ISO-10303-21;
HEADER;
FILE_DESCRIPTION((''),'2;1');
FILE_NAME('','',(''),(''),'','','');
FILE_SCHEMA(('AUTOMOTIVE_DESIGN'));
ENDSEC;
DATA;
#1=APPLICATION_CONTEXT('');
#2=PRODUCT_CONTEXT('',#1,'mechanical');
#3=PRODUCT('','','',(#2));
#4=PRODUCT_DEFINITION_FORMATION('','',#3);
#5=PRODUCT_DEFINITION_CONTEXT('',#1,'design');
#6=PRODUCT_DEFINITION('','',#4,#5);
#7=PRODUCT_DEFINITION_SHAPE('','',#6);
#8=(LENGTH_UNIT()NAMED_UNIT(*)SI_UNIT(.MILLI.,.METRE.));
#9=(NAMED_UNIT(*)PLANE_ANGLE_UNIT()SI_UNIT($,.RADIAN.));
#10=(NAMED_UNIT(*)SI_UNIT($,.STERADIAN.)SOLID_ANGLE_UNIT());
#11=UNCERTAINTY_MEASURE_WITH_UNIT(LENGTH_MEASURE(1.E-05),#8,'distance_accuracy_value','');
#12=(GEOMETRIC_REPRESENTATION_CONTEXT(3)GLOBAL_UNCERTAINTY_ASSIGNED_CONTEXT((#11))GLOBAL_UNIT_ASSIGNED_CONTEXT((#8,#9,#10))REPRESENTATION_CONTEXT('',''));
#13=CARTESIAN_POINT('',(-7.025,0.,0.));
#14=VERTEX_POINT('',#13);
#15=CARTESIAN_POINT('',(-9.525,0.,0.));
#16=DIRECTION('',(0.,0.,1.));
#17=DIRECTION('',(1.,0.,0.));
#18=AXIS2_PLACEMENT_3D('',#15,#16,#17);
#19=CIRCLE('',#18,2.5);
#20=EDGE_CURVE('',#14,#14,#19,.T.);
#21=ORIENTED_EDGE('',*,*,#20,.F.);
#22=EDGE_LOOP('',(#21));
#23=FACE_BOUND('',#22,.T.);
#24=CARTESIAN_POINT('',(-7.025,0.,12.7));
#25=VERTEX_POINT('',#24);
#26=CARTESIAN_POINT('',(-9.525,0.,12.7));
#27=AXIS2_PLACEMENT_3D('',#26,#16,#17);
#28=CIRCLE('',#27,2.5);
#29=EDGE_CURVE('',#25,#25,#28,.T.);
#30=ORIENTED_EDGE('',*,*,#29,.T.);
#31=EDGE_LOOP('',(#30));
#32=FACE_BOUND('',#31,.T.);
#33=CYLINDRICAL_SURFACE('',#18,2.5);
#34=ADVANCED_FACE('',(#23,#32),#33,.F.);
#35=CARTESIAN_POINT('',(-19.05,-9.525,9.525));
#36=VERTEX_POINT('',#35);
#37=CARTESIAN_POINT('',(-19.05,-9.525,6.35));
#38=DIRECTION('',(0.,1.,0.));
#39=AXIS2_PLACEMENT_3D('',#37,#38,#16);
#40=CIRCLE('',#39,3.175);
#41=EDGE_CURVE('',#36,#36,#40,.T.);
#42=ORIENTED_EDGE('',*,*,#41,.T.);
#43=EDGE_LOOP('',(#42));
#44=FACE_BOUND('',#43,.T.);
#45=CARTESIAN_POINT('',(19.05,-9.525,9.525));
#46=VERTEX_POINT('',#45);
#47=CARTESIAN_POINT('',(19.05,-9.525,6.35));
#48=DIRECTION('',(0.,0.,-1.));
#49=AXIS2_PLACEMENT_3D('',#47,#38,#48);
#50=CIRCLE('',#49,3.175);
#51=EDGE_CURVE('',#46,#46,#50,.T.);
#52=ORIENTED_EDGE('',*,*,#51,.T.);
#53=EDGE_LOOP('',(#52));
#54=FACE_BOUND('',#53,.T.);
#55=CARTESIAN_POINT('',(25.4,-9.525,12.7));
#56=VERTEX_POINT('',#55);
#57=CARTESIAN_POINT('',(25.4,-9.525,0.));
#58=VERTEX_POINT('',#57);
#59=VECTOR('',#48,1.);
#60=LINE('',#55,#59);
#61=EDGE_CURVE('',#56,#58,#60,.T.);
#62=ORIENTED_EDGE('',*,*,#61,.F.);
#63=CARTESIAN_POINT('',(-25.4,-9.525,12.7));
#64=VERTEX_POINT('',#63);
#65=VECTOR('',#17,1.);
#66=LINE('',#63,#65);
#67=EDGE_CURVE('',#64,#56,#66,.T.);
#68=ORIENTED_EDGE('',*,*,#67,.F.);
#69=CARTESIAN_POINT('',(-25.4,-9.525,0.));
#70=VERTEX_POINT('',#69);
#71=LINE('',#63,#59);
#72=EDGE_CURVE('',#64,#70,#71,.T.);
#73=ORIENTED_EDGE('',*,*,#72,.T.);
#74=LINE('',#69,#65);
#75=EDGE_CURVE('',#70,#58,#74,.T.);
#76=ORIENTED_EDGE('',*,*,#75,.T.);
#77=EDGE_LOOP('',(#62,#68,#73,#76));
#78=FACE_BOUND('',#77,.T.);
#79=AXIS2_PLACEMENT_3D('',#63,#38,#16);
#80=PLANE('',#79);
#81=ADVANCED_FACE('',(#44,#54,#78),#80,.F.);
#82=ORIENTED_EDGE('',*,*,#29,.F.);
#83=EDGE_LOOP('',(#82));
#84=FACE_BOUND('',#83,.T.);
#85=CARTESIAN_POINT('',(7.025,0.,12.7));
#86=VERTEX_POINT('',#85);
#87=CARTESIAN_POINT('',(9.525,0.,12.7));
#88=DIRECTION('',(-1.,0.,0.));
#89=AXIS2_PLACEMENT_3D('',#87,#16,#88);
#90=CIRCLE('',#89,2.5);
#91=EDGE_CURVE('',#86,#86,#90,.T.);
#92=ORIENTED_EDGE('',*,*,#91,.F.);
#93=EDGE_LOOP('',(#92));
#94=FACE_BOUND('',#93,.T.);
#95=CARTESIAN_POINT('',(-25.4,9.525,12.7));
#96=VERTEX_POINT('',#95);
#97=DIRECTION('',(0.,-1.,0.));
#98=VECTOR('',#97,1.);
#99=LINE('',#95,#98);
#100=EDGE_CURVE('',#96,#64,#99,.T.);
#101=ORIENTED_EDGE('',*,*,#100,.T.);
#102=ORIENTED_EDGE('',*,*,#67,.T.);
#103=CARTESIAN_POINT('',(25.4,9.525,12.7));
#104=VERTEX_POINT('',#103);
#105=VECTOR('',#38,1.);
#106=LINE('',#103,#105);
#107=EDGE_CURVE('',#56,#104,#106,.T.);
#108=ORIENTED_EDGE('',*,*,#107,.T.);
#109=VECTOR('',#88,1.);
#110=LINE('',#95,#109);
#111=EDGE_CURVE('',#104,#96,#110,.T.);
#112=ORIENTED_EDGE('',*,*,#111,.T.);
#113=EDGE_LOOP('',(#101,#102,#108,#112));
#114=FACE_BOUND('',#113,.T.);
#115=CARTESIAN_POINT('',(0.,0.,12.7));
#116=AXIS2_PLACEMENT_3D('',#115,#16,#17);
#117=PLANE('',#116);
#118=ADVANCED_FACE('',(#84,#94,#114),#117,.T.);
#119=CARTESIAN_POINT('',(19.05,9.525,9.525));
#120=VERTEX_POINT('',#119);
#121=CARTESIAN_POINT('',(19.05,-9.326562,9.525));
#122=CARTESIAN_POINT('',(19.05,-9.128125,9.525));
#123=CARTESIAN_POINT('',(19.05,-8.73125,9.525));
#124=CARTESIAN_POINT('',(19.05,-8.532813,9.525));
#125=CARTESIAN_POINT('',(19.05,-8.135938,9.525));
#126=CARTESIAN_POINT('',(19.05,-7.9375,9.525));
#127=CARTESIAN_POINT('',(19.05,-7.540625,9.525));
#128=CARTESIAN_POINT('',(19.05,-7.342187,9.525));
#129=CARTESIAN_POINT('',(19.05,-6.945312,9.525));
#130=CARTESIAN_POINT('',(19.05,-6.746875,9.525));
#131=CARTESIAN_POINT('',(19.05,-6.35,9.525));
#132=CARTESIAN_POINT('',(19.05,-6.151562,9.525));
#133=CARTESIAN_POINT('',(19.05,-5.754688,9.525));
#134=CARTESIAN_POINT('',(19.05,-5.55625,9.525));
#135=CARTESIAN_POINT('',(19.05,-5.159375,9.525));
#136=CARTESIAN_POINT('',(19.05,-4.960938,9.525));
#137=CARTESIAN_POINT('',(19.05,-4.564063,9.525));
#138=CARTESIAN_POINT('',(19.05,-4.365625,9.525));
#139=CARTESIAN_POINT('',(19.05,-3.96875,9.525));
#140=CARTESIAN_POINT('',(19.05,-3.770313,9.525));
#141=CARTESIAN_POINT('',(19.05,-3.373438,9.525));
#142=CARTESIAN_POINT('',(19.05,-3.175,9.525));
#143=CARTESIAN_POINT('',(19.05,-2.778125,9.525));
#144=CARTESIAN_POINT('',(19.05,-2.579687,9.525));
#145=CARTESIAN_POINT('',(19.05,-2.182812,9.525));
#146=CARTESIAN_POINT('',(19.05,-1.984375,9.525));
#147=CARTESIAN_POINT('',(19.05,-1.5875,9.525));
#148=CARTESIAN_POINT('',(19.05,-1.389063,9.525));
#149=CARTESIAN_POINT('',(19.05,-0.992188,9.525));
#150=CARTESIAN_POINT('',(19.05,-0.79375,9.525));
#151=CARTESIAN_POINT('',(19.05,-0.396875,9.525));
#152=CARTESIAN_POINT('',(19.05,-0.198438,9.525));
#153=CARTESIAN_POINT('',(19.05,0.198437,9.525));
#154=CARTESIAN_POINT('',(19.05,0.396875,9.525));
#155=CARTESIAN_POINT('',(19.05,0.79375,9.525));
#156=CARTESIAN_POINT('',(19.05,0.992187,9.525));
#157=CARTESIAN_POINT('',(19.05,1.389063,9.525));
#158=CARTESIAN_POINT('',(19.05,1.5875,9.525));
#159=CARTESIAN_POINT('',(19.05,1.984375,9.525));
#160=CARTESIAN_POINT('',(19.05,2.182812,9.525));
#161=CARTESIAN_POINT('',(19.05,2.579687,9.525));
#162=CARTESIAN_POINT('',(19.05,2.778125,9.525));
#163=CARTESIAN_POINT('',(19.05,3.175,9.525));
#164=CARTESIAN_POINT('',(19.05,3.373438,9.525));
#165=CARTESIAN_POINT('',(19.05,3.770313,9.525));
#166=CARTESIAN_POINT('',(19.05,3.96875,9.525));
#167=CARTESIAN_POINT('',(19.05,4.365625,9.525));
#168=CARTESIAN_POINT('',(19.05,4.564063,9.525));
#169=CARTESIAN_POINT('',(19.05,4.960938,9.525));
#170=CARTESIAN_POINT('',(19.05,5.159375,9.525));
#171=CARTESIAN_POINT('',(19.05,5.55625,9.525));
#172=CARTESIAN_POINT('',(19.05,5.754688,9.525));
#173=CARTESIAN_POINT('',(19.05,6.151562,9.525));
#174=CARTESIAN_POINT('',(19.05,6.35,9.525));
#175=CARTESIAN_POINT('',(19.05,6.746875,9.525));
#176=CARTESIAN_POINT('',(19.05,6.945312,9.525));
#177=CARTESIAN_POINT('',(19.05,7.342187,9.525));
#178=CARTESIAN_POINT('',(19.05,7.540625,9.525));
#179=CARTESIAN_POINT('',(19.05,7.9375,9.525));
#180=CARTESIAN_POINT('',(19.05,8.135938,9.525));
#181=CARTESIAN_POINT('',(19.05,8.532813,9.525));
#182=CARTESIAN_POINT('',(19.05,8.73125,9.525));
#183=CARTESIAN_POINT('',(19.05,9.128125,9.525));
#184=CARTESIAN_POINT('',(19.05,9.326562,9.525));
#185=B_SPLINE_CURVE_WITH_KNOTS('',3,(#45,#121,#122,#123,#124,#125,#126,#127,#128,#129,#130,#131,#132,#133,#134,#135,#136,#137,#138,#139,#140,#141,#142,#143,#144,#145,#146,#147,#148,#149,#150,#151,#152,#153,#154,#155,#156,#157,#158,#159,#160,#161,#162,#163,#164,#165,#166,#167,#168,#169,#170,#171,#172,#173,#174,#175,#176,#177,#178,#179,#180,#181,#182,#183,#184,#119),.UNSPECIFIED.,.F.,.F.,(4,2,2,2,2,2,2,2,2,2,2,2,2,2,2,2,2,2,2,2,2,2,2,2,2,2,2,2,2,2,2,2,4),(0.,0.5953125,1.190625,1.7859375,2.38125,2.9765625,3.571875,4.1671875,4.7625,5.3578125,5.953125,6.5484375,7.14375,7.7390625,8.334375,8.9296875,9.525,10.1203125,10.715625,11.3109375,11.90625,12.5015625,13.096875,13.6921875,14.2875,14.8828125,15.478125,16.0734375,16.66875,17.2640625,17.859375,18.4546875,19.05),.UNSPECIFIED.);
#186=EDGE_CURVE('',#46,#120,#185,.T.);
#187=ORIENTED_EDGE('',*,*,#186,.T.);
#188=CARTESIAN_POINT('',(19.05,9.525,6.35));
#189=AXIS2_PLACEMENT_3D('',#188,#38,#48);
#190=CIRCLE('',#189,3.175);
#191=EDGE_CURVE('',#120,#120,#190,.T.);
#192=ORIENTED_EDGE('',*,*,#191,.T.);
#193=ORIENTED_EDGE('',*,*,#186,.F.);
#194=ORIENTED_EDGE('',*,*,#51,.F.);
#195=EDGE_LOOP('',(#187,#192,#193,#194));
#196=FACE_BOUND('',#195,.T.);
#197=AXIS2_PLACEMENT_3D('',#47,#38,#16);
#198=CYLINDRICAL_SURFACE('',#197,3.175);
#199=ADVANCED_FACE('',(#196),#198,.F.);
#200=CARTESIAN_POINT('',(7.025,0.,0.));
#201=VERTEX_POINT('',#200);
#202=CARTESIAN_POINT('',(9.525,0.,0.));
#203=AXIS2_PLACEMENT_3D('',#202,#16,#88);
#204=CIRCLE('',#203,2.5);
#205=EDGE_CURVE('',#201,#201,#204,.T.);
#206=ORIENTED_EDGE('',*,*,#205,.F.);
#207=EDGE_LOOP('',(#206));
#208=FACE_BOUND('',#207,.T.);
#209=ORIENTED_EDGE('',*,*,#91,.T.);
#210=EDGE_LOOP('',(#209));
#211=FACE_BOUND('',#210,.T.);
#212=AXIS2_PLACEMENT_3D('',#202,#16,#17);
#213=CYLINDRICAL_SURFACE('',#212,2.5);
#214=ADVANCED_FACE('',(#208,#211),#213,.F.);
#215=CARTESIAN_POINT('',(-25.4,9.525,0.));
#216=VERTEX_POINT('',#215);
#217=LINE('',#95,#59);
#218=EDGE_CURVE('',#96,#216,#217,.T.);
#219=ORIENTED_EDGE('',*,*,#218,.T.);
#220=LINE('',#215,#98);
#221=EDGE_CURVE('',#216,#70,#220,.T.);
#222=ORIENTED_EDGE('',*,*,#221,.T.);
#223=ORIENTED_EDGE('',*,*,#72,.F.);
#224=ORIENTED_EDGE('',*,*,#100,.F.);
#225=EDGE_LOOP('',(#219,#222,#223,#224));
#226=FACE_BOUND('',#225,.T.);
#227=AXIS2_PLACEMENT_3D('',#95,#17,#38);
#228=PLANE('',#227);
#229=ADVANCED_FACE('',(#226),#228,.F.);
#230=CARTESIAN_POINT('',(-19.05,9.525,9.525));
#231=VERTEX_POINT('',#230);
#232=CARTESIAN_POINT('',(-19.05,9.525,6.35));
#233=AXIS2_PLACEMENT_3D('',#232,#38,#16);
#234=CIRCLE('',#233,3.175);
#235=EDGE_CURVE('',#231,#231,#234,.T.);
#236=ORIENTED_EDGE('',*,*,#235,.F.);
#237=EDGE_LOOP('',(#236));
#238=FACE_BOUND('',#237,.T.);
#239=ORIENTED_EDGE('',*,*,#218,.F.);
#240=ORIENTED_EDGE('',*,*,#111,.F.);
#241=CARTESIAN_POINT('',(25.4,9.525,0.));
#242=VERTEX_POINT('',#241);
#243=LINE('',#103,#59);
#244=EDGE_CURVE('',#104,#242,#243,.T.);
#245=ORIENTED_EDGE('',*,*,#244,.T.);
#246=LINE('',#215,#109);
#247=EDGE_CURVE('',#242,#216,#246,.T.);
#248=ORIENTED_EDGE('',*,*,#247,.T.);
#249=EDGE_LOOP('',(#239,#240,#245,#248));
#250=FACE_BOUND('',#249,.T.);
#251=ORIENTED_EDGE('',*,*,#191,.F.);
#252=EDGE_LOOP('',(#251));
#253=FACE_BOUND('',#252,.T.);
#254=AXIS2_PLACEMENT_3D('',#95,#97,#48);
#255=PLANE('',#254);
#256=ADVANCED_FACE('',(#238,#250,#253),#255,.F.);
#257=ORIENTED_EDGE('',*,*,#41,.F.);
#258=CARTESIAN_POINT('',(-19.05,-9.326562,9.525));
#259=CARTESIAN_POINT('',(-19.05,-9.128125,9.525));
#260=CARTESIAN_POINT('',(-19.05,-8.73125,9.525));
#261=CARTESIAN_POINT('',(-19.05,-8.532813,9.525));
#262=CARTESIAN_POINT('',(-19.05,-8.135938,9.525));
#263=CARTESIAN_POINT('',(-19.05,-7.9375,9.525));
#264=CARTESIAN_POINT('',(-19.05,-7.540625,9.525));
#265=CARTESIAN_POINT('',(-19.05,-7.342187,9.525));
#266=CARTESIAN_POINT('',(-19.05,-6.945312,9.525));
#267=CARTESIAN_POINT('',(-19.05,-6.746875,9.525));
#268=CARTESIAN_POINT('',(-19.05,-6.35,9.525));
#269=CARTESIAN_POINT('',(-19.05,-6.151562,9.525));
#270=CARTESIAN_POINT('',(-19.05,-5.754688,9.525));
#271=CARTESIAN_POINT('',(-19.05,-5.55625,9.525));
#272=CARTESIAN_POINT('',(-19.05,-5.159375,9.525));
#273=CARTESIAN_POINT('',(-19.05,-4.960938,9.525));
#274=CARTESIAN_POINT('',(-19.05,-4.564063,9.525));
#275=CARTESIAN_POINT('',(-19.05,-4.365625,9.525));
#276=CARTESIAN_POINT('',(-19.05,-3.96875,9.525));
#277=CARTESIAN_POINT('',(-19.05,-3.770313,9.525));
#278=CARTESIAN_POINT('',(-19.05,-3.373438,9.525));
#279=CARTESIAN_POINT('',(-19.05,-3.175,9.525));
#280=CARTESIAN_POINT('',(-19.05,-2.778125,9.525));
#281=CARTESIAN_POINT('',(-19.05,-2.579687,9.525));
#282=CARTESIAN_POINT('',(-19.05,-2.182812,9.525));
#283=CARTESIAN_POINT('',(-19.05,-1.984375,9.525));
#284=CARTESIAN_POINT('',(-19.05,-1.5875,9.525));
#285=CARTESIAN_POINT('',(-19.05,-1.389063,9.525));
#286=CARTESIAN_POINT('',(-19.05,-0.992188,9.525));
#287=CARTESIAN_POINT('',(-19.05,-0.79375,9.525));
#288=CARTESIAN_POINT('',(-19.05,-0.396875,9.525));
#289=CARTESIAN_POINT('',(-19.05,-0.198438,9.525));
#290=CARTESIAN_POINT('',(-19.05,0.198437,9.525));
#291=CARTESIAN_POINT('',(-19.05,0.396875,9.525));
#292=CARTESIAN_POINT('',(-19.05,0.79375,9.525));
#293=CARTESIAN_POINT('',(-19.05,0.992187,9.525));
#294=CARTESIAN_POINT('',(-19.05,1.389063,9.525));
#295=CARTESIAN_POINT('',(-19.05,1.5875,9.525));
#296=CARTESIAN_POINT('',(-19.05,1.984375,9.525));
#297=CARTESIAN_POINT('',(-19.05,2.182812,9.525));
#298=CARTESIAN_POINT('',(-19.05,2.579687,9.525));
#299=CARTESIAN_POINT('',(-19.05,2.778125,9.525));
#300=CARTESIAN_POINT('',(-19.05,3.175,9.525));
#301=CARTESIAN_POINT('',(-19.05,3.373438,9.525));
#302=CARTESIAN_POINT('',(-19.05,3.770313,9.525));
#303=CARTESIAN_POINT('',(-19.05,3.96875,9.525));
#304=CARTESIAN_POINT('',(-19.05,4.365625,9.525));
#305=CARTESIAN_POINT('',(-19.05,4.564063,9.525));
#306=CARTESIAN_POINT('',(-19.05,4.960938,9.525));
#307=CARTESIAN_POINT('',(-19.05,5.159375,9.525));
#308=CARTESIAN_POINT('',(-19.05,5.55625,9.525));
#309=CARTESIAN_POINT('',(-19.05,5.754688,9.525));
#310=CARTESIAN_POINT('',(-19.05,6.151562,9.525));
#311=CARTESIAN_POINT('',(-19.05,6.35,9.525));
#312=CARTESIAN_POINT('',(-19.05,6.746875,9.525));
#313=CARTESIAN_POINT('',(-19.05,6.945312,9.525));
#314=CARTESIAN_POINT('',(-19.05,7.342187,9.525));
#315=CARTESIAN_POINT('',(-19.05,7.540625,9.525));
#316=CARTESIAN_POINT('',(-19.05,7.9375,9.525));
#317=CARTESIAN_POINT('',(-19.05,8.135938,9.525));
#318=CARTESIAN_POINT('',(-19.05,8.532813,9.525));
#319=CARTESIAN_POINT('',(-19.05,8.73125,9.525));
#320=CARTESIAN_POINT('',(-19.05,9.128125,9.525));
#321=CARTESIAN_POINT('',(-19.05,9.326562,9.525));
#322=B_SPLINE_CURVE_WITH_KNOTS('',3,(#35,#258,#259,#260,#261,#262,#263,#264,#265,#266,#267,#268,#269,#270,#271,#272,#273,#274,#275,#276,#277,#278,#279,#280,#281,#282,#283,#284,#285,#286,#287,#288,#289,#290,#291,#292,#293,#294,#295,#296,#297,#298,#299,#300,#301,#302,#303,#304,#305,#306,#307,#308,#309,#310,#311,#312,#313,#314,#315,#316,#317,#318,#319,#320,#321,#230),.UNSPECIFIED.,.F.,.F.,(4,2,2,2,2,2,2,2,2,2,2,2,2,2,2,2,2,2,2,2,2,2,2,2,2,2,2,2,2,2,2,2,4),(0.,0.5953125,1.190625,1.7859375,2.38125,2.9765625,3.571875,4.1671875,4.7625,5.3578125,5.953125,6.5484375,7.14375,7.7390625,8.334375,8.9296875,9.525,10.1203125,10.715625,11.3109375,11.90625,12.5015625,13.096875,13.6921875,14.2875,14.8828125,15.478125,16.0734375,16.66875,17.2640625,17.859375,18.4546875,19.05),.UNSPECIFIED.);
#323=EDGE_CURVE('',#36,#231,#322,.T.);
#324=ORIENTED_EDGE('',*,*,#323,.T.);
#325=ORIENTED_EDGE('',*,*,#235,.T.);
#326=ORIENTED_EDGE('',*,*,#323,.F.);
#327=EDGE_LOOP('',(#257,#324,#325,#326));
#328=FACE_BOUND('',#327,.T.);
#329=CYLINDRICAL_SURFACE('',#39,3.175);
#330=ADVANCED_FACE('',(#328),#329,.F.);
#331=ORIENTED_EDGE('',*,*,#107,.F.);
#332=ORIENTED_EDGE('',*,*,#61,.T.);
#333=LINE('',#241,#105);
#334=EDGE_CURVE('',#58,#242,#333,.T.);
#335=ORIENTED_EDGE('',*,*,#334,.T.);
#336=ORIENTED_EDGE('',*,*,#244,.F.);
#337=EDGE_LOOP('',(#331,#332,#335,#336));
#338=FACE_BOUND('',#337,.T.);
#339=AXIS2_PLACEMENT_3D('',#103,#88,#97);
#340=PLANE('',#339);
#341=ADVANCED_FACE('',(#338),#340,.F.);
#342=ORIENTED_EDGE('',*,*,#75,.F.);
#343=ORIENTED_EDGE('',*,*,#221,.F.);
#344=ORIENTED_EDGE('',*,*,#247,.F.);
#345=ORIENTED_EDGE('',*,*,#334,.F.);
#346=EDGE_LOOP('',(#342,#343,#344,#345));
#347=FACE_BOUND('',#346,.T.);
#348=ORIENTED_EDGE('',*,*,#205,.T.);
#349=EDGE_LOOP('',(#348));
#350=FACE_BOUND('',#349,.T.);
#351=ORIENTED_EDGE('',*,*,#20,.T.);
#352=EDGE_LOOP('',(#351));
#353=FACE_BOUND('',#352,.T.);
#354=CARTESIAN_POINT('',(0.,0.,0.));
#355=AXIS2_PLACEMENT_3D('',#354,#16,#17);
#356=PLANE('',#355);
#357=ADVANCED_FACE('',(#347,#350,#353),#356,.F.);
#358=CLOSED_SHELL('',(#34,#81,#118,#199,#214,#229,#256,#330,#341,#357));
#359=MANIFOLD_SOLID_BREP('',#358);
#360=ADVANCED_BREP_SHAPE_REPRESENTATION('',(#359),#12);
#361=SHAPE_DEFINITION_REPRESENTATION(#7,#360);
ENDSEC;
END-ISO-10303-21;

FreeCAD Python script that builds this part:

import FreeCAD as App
import Part
import Sketcher
from FreeCAD import Vector
Q = App.Units.Quantity

doc = App.newDocument("Part")
body = doc.addObject("PartDesign::Body", "Body")

sketch1 = body.newObject("Sketcher::SketchObject", "Sketch")
sketch1.AttachmentSupport = (doc.getObject("XY_Plane"), [""])
sketch1.MapMode = "FlatFace"
sketch1.addGeometry([
    Part.LineSegment(Vector(-25, 10, 0), Vector(-25, -10, 0)),
    Part.LineSegment(Vector(-25, -10, 0), Vector(25, -10, 0)),
    Part.LineSegment(Vector(25, -10, 0), Vector(25, 10, 0)),
    Part.LineSegment(Vector(25, 10, 0), Vector(-25, 10, 0)),
], False)
sketch1.addConstraint([
    Sketcher.Constraint("Coincident", 0, 2, 1, 1),
    Sketcher.Constraint("Coincident", 1, 2, 2, 1),
    Sketcher.Constraint("Coincident", 2, 2, 3, 1),
    Sketcher.Constraint("Coincident", 3, 2, 0, 1),
    Sketcher.Constraint("Vertical", 0),
    Sketcher.Constraint("Horizontal", 1),
    Sketcher.Constraint("Vertical", 2),
    Sketcher.Constraint("Horizontal", 3),
    Sketcher.Constraint("Symmetric", 0, 2, 2, 2, -1, 1),
    Sketcher.Constraint("DistanceX", 1, 1, 1, 2, Q("2 in")),
    Sketcher.Constraint("DistanceY", 0, 2, 0, 1, Q("0.75 in")),
])
pad1 = body.newObject("PartDesign::Pad", "Pad")
pad1.Profile = sketch1
pad1.Length = Q("0.5 in")

sketch2 = body.newObject("Sketcher::SketchObject", "Sketch001")
sketch2.AttachmentSupport = (doc.getObject("XY_Plane"), [""])
sketch2.MapMode = "FlatFace"
sketch2.AttachmentOffset = App.Placement(Vector(0, 0, 0.5 * 25.4), App.Rotation())
sketch2.addGeometry([
    Part.Circle(Vector(-9.5, 0, 0), Vector(0, 0, 1), 2.5),
    Part.Circle(Vector(9.5, 0, 0), Vector(0, 0, 1), 2.5),
], False)
sketch2.addConstraint([
    Sketcher.Constraint("Equal", 0, 1),
    Sketcher.Constraint("Symmetric", 0, 3, 1, 3, -1, 1),
    Sketcher.Constraint("PointOnObject", 0, 3, -1),
    Sketcher.Constraint("Diameter", 0, 5.0),
    Sketcher.Constraint("DistanceX", 0, 3, 1, 3, Q("0.75 in")),
])
pocket1 = body.newObject("PartDesign::Pocket", "Pocket")
pocket1.Profile = sketch2
pocket1.Type = "ThroughAll"

sketch3 = body.newObject("Sketcher::SketchObject", "Sketch002")
sketch3.AttachmentSupport = (doc.getObject("XZ_Plane"), [""])
sketch3.MapMode = "FlatFace"
sketch3.AttachmentOffset = App.Placement(Vector(0, 0, -0.375 * 25.4), App.Rotation())
sketch3.addGeometry([
    Part.Circle(Vector(-19.1, 6.3, 0), Vector(0, 0, 1), 3.2),
    Part.Circle(Vector(19.1, 6.3, 0), Vector(0, 0, 1), 3.2),
], False)
sketch3.addConstraint([
    Sketcher.Constraint("Equal", 0, 1),
    Sketcher.Constraint("Symmetric", 0, 3, 1, 3, -2),
    Sketcher.Constraint("Diameter", 0, Q("0.25 in")),
    Sketcher.Constraint("DistanceX", 0, 3, 1, 3, Q("1.5 in")),
    Sketcher.Constraint("DistanceY", -1, 1, 0, 3, Q("0.25 in")),
])
pocket2 = body.newObject("PartDesign::Pocket", "Pocket001")
pocket2.Profile = sketch3
pocket2.Type = "ThroughAll"
pocket2.Reversed = True

doc.recompute()
